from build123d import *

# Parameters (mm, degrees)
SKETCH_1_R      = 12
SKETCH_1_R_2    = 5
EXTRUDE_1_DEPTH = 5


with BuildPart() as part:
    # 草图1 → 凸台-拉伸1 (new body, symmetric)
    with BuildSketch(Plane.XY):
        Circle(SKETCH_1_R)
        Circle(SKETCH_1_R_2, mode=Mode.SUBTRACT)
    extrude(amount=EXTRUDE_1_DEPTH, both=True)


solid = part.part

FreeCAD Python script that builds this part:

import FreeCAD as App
import Part
import Sketcher
from FreeCAD import Vector
Q = App.Units.Quantity

doc = App.newDocument("Part")
body = doc.addObject("PartDesign::Body", "Body")

sketch1 = body.newObject("Sketcher::SketchObject", "Sketch")
sketch1.AttachmentSupport = (doc.getObject("XY_Plane"), [""])
sketch1.MapMode = "FlatFace"
sketch1.addGeometry([
    Part.Circle(Vector(0, 0, 0), Vector(0, 0, 1), 12),
    Part.Circle(Vector(0, 0, 0), Vector(0, 0, 1), 5),
], False)
sketch1.addConstraint([
    Sketcher.Constraint("Coincident", 0, 3, -1, 1),
    Sketcher.Constraint("Coincident", 1, 3, -1, 1),
    Sketcher.Constraint("Diameter", 0, Q("24 mm")),
    Sketcher.Constraint("Diameter", 1, Q("10 mm")),
])
pad1 = body.newObject("PartDesign::Pad", "Pad")
pad1.Profile = sketch1
pad1.Length = 10
pad1.Midplane = True

doc.recompute()
